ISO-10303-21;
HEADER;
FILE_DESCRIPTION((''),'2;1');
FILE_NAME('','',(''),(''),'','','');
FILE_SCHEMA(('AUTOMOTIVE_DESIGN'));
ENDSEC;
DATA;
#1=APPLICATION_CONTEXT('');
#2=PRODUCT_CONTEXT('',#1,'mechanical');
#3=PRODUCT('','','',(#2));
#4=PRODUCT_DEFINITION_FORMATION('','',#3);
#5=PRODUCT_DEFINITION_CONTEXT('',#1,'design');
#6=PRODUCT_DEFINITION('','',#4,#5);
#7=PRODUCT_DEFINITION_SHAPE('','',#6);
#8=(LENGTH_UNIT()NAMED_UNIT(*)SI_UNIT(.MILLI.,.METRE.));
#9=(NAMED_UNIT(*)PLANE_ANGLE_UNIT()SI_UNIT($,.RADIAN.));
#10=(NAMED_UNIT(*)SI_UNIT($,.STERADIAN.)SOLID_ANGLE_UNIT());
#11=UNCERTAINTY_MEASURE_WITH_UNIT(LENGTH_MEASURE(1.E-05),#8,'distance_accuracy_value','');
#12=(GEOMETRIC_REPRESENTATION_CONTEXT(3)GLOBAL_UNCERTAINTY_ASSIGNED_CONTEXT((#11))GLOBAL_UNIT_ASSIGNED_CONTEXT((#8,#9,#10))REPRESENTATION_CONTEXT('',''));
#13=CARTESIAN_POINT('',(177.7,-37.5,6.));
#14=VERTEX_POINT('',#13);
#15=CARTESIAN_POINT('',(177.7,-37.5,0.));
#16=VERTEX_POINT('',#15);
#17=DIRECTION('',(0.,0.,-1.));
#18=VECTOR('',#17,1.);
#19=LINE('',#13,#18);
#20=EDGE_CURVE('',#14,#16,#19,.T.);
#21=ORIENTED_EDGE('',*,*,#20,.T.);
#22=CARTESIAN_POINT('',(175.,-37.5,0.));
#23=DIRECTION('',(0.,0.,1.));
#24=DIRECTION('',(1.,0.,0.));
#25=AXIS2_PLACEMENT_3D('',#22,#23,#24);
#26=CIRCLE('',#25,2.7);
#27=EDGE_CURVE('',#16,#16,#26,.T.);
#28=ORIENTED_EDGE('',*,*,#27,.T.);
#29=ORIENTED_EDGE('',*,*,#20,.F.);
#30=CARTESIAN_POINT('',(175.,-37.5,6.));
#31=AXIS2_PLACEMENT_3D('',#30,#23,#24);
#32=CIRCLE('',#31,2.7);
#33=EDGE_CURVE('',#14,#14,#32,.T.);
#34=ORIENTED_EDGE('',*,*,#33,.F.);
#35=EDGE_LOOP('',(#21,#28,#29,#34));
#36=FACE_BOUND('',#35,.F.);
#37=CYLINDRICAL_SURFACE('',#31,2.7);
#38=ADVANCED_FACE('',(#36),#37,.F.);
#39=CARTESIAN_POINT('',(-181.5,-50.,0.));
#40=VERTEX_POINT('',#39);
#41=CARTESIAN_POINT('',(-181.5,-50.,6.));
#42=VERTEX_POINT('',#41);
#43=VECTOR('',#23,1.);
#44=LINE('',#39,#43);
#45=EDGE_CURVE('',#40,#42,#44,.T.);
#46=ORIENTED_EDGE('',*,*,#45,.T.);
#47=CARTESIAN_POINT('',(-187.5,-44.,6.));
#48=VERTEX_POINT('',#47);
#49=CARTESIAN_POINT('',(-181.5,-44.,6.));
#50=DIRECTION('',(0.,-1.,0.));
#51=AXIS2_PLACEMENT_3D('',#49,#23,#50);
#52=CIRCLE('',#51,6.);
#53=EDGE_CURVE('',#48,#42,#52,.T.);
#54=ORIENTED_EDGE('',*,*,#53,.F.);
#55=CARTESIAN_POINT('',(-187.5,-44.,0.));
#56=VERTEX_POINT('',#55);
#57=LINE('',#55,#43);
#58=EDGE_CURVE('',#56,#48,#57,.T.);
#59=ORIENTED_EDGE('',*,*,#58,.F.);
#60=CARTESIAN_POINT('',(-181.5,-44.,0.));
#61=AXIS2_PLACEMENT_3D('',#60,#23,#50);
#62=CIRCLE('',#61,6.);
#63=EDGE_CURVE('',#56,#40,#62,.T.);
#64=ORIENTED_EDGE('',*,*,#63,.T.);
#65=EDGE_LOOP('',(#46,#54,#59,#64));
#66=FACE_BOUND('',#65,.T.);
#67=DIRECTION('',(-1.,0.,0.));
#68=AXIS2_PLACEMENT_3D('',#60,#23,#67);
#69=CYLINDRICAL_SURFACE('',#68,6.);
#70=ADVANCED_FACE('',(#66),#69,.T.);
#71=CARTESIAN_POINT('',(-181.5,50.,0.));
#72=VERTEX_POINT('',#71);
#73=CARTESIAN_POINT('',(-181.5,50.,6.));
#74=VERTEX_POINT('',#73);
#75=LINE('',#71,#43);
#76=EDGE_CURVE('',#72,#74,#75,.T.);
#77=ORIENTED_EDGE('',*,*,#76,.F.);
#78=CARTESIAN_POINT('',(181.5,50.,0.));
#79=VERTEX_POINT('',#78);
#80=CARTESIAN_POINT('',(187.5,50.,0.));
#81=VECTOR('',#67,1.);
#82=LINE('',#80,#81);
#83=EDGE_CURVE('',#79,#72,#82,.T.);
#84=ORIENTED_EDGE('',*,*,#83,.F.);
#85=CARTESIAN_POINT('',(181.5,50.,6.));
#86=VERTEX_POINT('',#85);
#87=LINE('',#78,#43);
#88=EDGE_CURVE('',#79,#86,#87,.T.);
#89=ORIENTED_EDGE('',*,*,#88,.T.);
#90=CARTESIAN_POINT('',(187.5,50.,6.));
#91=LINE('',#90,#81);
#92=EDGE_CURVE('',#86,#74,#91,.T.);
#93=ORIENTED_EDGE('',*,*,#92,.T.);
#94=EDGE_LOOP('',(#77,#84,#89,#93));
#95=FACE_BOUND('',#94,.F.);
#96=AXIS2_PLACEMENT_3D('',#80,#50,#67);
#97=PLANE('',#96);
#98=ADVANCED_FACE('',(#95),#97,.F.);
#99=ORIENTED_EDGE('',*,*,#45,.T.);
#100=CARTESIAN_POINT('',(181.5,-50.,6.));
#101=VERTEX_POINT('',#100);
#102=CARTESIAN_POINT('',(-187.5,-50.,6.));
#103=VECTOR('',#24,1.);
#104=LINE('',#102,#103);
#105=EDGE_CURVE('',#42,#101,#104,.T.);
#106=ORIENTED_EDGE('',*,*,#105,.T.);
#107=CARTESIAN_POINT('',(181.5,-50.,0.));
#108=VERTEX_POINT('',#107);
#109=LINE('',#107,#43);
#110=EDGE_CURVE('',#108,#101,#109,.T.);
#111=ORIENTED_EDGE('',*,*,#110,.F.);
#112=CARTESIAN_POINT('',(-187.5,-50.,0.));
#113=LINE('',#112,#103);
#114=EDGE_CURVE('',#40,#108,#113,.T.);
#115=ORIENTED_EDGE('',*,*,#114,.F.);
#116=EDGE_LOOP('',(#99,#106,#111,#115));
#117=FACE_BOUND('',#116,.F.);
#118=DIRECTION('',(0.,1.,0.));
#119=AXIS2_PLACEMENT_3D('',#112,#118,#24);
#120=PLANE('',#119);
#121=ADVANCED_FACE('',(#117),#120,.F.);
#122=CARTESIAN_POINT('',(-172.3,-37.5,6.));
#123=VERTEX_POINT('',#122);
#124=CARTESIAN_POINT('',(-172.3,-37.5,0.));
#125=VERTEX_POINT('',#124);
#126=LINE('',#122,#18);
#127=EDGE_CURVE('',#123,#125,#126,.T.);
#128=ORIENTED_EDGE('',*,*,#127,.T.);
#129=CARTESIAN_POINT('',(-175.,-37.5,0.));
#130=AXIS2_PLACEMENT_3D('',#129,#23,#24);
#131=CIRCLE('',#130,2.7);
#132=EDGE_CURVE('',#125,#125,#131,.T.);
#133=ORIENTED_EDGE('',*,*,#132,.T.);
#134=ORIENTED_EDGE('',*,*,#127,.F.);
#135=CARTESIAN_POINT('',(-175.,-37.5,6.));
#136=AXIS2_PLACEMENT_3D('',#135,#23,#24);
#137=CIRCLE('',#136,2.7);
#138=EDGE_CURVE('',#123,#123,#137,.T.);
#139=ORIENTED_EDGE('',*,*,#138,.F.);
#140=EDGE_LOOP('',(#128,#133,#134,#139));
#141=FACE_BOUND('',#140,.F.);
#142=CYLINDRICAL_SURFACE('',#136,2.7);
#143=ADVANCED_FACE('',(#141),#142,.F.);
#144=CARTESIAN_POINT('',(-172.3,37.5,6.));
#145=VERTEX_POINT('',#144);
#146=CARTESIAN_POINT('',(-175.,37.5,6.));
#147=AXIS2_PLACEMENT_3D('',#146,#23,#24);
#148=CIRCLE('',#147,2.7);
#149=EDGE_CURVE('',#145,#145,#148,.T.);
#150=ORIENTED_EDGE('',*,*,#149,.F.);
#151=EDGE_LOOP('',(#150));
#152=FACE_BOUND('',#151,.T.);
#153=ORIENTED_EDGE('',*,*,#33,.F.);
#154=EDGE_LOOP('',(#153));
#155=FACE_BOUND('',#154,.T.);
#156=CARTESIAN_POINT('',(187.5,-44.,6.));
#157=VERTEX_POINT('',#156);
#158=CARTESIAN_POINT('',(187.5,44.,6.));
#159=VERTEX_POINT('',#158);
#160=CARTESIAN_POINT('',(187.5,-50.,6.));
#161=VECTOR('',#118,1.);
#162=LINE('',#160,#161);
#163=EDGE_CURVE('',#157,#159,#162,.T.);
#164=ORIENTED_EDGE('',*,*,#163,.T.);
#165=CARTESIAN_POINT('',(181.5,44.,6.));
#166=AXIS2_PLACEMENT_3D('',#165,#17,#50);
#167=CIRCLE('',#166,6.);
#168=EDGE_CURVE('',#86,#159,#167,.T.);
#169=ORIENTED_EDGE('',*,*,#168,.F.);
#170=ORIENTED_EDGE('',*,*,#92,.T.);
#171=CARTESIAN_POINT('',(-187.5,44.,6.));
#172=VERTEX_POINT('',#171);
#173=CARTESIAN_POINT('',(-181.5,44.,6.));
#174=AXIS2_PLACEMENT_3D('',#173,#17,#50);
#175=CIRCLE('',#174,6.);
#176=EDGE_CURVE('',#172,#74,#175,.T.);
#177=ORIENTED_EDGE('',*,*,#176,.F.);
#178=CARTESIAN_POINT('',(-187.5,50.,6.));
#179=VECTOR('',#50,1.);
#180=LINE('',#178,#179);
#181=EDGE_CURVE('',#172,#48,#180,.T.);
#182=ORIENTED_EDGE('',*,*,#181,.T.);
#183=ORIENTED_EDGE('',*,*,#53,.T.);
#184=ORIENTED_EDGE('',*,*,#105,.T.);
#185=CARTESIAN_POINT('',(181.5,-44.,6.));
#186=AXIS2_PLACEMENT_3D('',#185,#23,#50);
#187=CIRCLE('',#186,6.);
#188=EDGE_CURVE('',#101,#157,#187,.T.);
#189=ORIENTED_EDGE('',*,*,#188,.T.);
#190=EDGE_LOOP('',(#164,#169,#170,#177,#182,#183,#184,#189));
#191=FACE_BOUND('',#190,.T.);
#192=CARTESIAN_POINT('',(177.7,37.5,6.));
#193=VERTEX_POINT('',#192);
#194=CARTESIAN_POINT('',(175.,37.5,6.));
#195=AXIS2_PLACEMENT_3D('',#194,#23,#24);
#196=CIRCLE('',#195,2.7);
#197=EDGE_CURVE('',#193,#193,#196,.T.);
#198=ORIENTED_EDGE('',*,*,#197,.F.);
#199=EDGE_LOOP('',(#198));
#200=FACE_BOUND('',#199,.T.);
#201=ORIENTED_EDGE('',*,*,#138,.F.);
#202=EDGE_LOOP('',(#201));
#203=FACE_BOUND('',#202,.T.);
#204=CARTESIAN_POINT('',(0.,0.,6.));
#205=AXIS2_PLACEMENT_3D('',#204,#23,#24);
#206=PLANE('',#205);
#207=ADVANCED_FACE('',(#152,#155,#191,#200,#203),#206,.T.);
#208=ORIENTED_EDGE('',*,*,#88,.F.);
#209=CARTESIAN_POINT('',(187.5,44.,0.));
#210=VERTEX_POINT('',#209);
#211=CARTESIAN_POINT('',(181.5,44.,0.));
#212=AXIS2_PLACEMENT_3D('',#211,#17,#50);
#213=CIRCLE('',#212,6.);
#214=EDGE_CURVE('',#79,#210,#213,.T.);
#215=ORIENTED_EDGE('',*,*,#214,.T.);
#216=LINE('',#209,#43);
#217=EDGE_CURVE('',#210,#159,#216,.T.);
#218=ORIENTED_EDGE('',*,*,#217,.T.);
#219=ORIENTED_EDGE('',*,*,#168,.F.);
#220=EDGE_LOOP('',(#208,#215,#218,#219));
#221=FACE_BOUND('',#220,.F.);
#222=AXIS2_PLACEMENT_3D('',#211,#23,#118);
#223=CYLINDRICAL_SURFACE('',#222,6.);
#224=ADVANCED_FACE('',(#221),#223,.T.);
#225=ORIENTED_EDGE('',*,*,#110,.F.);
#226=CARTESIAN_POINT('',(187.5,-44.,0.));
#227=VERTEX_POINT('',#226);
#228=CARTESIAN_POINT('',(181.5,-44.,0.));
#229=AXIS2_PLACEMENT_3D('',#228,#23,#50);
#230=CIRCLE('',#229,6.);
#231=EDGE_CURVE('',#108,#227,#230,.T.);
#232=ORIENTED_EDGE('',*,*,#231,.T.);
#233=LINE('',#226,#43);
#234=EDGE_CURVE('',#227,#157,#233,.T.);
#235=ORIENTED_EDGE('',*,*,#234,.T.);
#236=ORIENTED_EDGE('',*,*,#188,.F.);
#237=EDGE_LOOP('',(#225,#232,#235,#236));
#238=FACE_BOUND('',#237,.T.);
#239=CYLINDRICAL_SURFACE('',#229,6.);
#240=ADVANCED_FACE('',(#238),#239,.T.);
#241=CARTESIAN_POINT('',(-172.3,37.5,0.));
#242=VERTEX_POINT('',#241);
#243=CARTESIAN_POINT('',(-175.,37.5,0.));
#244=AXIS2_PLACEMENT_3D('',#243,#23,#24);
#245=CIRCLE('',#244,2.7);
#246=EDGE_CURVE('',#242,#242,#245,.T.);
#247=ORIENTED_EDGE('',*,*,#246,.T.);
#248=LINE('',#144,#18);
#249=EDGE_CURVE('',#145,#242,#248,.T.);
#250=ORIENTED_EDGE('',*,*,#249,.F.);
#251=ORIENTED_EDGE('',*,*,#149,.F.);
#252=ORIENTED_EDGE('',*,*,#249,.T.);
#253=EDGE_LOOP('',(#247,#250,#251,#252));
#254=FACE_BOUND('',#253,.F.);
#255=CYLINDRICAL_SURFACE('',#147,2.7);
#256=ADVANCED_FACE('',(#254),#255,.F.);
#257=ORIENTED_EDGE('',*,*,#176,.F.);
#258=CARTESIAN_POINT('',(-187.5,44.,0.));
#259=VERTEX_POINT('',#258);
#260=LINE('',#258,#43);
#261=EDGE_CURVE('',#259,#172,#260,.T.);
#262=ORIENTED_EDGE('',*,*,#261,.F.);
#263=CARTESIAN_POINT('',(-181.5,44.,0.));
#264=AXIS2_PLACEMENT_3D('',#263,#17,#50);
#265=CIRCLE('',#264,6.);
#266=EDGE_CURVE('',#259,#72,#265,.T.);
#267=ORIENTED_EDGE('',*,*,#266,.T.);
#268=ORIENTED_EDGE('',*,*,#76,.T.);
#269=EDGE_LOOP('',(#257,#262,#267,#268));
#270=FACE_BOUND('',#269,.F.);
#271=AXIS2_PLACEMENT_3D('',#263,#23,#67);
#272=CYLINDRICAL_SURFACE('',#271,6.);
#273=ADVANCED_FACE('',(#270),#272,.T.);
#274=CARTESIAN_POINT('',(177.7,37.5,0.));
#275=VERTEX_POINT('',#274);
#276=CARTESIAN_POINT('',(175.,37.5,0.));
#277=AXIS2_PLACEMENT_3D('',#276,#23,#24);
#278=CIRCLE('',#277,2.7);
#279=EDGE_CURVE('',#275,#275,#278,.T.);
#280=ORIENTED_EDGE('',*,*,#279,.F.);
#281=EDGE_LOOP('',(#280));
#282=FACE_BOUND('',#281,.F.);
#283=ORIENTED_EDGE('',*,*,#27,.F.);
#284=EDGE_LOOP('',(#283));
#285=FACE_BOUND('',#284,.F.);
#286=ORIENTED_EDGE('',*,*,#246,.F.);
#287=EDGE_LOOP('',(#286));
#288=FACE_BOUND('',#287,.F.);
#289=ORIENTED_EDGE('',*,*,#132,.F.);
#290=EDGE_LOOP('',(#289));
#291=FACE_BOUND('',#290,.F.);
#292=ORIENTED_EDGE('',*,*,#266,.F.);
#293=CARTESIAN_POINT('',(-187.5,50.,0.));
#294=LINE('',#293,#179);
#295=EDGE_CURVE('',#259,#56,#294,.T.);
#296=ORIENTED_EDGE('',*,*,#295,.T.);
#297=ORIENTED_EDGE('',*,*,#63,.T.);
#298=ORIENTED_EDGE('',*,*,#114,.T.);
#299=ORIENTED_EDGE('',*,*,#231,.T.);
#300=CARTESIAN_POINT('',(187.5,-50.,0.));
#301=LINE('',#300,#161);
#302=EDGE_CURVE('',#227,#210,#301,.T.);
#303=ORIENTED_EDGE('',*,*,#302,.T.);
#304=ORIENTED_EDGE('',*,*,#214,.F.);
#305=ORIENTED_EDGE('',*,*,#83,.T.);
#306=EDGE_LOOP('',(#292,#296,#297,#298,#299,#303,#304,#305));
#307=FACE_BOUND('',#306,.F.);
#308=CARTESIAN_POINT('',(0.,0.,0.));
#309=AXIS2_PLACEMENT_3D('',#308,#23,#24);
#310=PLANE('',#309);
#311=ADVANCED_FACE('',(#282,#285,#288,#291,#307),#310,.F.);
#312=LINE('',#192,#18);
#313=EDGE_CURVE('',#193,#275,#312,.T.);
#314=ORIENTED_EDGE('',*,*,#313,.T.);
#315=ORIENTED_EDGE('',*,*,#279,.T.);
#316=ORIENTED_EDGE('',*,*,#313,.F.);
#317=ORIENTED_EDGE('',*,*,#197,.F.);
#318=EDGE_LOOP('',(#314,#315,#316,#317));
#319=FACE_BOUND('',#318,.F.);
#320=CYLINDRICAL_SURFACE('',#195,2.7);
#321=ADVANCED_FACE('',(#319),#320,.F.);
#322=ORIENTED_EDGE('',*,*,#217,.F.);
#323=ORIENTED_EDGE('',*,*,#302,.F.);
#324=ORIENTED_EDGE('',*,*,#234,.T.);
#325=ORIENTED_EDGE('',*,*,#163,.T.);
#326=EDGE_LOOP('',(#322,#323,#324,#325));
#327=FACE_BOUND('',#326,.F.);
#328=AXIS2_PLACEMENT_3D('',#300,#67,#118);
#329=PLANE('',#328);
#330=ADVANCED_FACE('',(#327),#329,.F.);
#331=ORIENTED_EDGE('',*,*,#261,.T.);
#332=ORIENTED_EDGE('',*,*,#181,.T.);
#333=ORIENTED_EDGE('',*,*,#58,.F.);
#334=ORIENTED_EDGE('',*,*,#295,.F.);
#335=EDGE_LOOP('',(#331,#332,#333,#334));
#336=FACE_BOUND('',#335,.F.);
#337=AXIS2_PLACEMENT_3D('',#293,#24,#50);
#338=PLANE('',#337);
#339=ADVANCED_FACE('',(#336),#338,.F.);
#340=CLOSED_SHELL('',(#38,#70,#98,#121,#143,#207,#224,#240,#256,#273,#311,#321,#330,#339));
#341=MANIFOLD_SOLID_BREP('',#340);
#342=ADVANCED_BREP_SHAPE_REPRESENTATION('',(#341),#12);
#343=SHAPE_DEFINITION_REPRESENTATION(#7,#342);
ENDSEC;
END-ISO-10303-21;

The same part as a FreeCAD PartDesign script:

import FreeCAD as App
import Part
import Sketcher
from FreeCAD import Vector


def edges_at(feature, points):
    """Names of the edges that pass closest to the given points."""
    edges = feature.Shape.Edges
    near = lambda p: min(range(len(edges)), key=lambda i: edges[i].distToShape(Part.Vertex(*p))[0])
    return sorted({f"Edge{near(p) + 1}" for p in points})


def add_polygon(sketch, points):
    """Adds a closed chain of lines whose ends are joined by coincident constraints."""
    first, n = sketch.GeometryCount, len(points)
    for a, b in zip(points, points[1:] + points[:1]):
        sketch.addGeometry(Part.LineSegment(App.Vector(*a, 0), App.Vector(*b, 0)), False)
    for i in range(n):
        sketch.addConstraint(Sketcher.Constraint("Coincident", first + i, 2, first + (i + 1) % n, 1))

doc = App.newDocument("Part")
body = doc.addObject("PartDesign::Body", "Body")

# Sketch on XY plane
sketch1 = body.newObject("Sketcher::SketchObject", "Sketch")
sketch1.AttachmentSupport = (doc.getObject("XY_Plane"), [""])
sketch1.MapMode = "FlatFace"
add_polygon(sketch1, [(-187.5, 50), (-187.5, -50), (187.5, -50), (187.5, 50)])  # lines 0-3
sketch1.addConstraint(Sketcher.Constraint("Vertical", 0))
sketch1.addConstraint(Sketcher.Constraint("Horizontal", 1))
sketch1.addConstraint(Sketcher.Constraint("Vertical", 2))
sketch1.addConstraint(Sketcher.Constraint("Horizontal", 3))
sketch1.addConstraint(Sketcher.Constraint("Symmetric", 0, 2, 2, 2, -1, 1))
sketch1.addConstraint(Sketcher.Constraint("DistanceX", 1, 1, 1, 2, 375.0))
sketch1.addConstraint(Sketcher.Constraint("DistanceY", 0, 2, 0, 1, 100.0))
pad1 = body.newObject("PartDesign::Pad", "Pad")
pad1.Profile = sketch1
pad1.Length = 6

# Sketch on XY plane
sketch2 = body.newObject("Sketcher::SketchObject", "Sketch001")
sketch2.AttachmentSupport = (doc.getObject("XY_Plane"), [""])
sketch2.MapMode = "FlatFace"
sketch2.AttachmentOffset = App.Placement(Vector(0, 0, 6), App.Rotation())
sketch2.addGeometry(Part.Circle(Vector(-175, 37.5, 0), Vector(0, 0, 1), 2.7), False)
sketch2.addGeometry(Part.Circle(Vector(-175, -37.5, 0), Vector(0, 0, 1), 2.7), False)
sketch2.addGeometry(Part.Circle(Vector(175, -37.5, 0), Vector(0, 0, 1), 2.7), False)
sketch2.addGeometry(Part.Circle(Vector(175, 37.5, 0), Vector(0, 0, 1), 2.7), False)
sketch2.addConstraint(Sketcher.Constraint("Equal", 0, 1))
sketch2.addConstraint(Sketcher.Constraint("Equal", 1, 2))
sketch2.addConstraint(Sketcher.Constraint("Equal", 2, 3))
sketch2.addConstraint(Sketcher.Constraint("Symmetric", 0, 3, 2, 3, -1, 1))
sketch2.addConstraint(Sketcher.Constraint("Symmetric", 1, 3, 3, 3, -1, 1))
sketch2.addConstraint(Sketcher.Constraint("Symmetric", 1, 3, 2, 3, -2))
sketch2.addConstraint(Sketcher.Constraint("Diameter", 0, 5.4))
sketch2.addConstraint(Sketcher.Constraint("DistanceX", 0, 3, -1, 1, 175.0))
sketch2.addConstraint(Sketcher.Constraint("DistanceY", 1, 3, 0, 3, 75.0))
pocket1 = body.newObject("PartDesign::Pocket", "Pocket")
pocket1.Profile = sketch2
pocket1.Type = "ThroughAll"
doc.recompute()

fillet = body.newObject("PartDesign::Fillet", "Fillet")
fillet.Base = (pocket1, edges_at(pocket1, [
    (187.5, -50, 3),
    (-187.5, 50, 3),
    (-187.5, -50, 3),
    (187.5, 50, 3),
]))
fillet.Radius = 6

doc.recompute()
